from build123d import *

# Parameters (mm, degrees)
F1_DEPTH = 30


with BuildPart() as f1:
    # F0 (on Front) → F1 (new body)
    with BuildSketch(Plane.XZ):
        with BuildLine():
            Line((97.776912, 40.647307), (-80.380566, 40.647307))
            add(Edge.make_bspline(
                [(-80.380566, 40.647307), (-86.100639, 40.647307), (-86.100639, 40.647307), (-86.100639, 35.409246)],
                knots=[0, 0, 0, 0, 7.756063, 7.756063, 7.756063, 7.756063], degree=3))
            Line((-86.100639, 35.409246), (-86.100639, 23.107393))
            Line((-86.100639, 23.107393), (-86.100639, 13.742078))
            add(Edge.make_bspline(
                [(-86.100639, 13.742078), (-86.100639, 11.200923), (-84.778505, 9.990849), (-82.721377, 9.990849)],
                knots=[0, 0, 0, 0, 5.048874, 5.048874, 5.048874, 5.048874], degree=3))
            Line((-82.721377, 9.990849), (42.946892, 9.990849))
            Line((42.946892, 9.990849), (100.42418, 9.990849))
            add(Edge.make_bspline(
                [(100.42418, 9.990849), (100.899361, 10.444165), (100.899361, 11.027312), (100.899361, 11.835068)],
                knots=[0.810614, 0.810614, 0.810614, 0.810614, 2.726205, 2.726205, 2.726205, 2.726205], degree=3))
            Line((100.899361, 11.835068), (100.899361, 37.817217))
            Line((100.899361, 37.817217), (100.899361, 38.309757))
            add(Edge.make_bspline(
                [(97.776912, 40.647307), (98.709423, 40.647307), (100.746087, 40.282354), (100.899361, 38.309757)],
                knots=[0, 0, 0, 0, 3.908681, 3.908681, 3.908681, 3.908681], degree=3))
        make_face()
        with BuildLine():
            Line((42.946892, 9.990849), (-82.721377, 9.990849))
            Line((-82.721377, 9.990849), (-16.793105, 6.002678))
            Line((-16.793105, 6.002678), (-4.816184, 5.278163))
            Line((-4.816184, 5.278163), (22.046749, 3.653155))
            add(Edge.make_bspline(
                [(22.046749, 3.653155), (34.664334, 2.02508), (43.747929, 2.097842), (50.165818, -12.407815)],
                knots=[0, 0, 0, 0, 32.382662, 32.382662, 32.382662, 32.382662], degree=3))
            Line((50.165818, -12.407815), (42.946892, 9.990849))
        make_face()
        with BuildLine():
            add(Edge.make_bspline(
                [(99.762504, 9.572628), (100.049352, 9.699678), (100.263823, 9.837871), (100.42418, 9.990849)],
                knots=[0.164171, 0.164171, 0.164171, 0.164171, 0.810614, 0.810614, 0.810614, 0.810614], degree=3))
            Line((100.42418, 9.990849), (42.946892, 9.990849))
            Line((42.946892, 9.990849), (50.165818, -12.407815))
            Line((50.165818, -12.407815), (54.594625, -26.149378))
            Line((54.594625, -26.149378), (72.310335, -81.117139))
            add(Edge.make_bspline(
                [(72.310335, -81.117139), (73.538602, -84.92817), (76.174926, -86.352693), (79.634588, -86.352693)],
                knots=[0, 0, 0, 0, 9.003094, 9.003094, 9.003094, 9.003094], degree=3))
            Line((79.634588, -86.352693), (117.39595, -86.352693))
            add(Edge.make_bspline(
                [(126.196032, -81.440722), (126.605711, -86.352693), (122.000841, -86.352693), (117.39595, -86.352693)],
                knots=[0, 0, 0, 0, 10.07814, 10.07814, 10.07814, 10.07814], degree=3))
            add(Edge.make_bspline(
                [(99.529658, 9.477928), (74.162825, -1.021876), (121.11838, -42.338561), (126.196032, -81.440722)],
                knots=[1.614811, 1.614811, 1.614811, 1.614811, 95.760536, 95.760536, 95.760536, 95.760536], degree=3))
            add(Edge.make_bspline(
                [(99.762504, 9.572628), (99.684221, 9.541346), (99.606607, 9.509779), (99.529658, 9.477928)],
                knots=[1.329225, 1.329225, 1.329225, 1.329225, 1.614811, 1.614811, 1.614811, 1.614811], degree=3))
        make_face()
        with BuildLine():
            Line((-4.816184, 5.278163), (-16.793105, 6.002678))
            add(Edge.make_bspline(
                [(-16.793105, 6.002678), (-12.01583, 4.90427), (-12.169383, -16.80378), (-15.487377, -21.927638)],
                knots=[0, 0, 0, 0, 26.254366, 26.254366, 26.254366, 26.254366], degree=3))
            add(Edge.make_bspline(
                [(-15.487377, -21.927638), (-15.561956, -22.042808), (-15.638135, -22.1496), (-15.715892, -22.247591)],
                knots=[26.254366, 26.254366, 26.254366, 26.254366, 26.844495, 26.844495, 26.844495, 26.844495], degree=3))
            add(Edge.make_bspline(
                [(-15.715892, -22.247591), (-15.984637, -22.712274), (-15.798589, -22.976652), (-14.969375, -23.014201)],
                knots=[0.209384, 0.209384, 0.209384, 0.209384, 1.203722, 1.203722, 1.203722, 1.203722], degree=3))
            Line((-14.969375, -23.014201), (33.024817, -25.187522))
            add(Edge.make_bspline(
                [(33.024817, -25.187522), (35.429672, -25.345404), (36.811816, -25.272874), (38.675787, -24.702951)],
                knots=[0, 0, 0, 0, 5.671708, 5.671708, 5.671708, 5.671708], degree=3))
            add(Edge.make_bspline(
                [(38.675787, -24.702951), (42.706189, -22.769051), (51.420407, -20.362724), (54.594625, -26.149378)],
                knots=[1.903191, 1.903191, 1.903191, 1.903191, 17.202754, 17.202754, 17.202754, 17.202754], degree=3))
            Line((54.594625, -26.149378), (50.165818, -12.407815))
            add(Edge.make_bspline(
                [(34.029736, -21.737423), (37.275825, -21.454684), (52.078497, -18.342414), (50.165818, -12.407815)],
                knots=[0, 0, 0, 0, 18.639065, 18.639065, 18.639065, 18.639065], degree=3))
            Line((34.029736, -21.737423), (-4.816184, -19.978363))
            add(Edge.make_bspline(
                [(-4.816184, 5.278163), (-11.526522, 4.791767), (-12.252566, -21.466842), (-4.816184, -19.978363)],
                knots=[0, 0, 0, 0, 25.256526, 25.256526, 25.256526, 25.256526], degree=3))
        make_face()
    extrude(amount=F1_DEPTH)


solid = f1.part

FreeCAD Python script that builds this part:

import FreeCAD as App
import Part
import Sketcher
from FreeCAD import Vector

doc = App.newDocument("Part")
body = doc.addObject("PartDesign::Body", "Body")

# Sketch on XZ plane
sketch1 = doc.addObject("Sketcher::SketchObject", "Sketch")
body.addObject(sketch1)
sketch1.AttachmentSupport = (doc.XZ_Plane, [""])
sketch1.MapMode = "FlatFace"
sketch1.addGeometry(Part.LineSegment(Vector(97.776912, 40.647307, 0), Vector(-80.380566, 40.647307, 0)), False)
sketch1.addGeometry(Part.BSplineCurve([Vector(-80.380566, 40.647307, 0), Vector(-86.100639, 40.647307, 0), Vector(-86.100639, 40.647307, 0), Vector(-86.100639, 35.409246, 0)], [4, 4], [0, 7.756063], False, 3, [1, 1, 1, 1], False), False)
sketch1.addGeometry(Part.LineSegment(Vector(-86.100639, 35.409246, 0), Vector(-86.100639, 13.742078, 0)), False)
sketch1.addGeometry(Part.BSplineCurve([Vector(-86.100639, 13.742078, 0), Vector(-86.100639, 11.200923, 0), Vector(-84.778505, 9.990849, 0), Vector(-82.721377, 9.990849, 0)], [4, 4], [0, 5.048874], False, 3, [1, 1, 1, 1], False), False)
sketch1.addGeometry(Part.LineSegment(Vector(-82.721377, 9.990849, 0), Vector(-16.793105, 6.002678, 0)), False)
sketch1.addGeometry(Part.BSplineCurve([Vector(-16.793105, 6.002678, 0), Vector(-12.01583, 4.90427, 0), Vector(-12.169383, -16.80378, 0), Vector(-15.487377, -21.927638, 0)], [4, 4], [0, 26.254366], False, 3, [1, 1, 1, 1], False), False)
sketch1.addGeometry(Part.BSplineCurve([Vector(-15.487377, -21.927638, 0), Vector(-15.561956, -22.042808, 0), Vector(-15.638135, -22.1496, 0), Vector(-15.715892, -22.247591, 0)], [4, 4], [26.254366, 26.844495], False, 3, [1, 1, 1, 1], False), False)
sketch1.addGeometry(Part.BSplineCurve([Vector(-15.715892, -22.247591, 0), Vector(-15.984637, -22.712274, 0), Vector(-15.798589, -22.976652, 0), Vector(-14.969375, -23.014201, 0)], [4, 4], [0.209384, 1.203722], False, 3, [1, 1, 1, 1], False), False)
sketch1.addGeometry(Part.LineSegment(Vector(-14.969375, -23.014201, 0), Vector(33.024817, -25.187522, 0)), False)
sketch1.addGeometry(Part.BSplineCurve([Vector(33.024817, -25.187522, 0), Vector(35.429672, -25.345404, 0), Vector(36.811816, -25.272874, 0), Vector(38.675787, -24.702951, 0)], [4, 4], [0, 5.671708], False, 3, [1, 1, 1, 1], False), False)
sketch1.addGeometry(Part.BSplineCurve([Vector(38.675787, -24.702951, 0), Vector(42.706189, -22.769051, 0), Vector(51.420407, -20.362724, 0), Vector(54.594625, -26.149378, 0)], [4, 4], [1.903191, 17.202754], False, 3, [1, 1, 1, 1], False), False)
sketch1.addGeometry(Part.LineSegment(Vector(54.594625, -26.149378, 0), Vector(72.310335, -81.117139, 0)), False)
sketch1.addGeometry(Part.BSplineCurve([Vector(72.310335, -81.117139, 0), Vector(73.538602, -84.92817, 0), Vector(76.174926, -86.352693, 0), Vector(79.634588, -86.352693, 0)], [4, 4], [0, 9.003094], False, 3, [1, 1, 1, 1], False), False)
sketch1.addGeometry(Part.LineSegment(Vector(79.634588, -86.352693, 0), Vector(117.39595, -86.352693, 0)), False)
sketch1.addGeometry(Part.BSplineCurve([Vector(126.196032, -81.440722, 0), Vector(126.605711, -86.352693, 0), Vector(122.000841, -86.352693, 0), Vector(117.39595, -86.352693, 0)], [4, 4], [0, 10.07814], False, 3, [1, 1, 1, 1], False), False)
sketch1.addGeometry(Part.BSplineCurve([Vector(99.529658, 9.477928, 0), Vector(74.162825, -1.021876, 0), Vector(121.11838, -42.338561, 0), Vector(126.196032, -81.440722, 0)], [4, 4], [1.614811, 95.760536], False, 3, [1, 1, 1, 1], False), False)
sketch1.addGeometry(Part.BSplineCurve([Vector(99.762504, 9.572628, 0), Vector(99.684221, 9.541346, 0), Vector(99.606607, 9.509779, 0), Vector(99.529658, 9.477928, 0)], [4, 4], [1.329225, 1.614811], False, 3, [1, 1, 1, 1], False), False)
sketch1.addGeometry(Part.BSplineCurve([Vector(99.762504, 9.572628, 0), Vector(100.049352, 9.699678, 0), Vector(100.263823, 9.837871, 0), Vector(100.42418, 9.990849, 0)], [4, 4], [0.164171, 0.810614], False, 3, [1, 1, 1, 1], False), False)
sketch1.addGeometry(Part.BSplineCurve([Vector(100.42418, 9.990849, 0), Vector(100.899361, 10.444165, 0), Vector(100.899361, 11.027312, 0), Vector(100.899361, 11.835068, 0)], [4, 4], [0.810614, 2.726205], False, 3, [1, 1, 1, 1], False), False)
sketch1.addGeometry(Part.LineSegment(Vector(100.899361, 11.835068, 0), Vector(100.899361, 38.309757, 0)), False)
sketch1.addGeometry(Part.BSplineCurve([Vector(97.776912, 40.647307, 0), Vector(98.709423, 40.647307, 0), Vector(100.746087, 40.282354, 0), Vector(100.899361, 38.309757, 0)], [4, 4], [0, 3.908681], False, 3, [1, 1, 1, 1], False), False)
sketch1.addGeometry(Part.LineSegment(Vector(-4.816184, 5.278163, 0), Vector(22.046749, 3.653155, 0)), False)
sketch1.addGeometry(Part.BSplineCurve([Vector(22.046749, 3.653155, 0), Vector(34.664334, 2.02508, 0), Vector(43.747929, 2.097842, 0), Vector(50.165818, -12.407815, 0)], [4, 4], [0, 32.382662], False, 3, [1, 1, 1, 1], False), False)
sketch1.addGeometry(Part.BSplineCurve([Vector(34.029736, -21.737423, 0), Vector(37.275825, -21.454684, 0), Vector(52.078497, -18.342414, 0), Vector(50.165818, -12.407815, 0)], [4, 4], [0, 18.639065], False, 3, [1, 1, 1, 1], False), False)
sketch1.addGeometry(Part.LineSegment(Vector(34.029736, -21.737423, 0), Vector(-4.816184, -19.978363, 0)), False)
sketch1.addGeometry(Part.BSplineCurve([Vector(-4.816184, 5.278163, 0), Vector(-11.526522, 4.791767, 0), Vector(-12.252566, -21.466842, 0), Vector(-4.816184, -19.978363, 0)], [4, 4], [0, 25.256526], False, 3, [1, 1, 1, 1], False), False)
sketch1.addConstraint(Sketcher.Constraint("Block", 1))
sketch1.addConstraint(Sketcher.Constraint("Block", 3))
sketch1.addConstraint(Sketcher.Constraint("Block", 5))
sketch1.addConstraint(Sketcher.Constraint("Block", 6))
sketch1.addConstraint(Sketcher.Constraint("Block", 7))
sketch1.addConstraint(Sketcher.Constraint("Block", 9))
sketch1.addConstraint(Sketcher.Constraint("Block", 10))
sketch1.addConstraint(Sketcher.Constraint("Block", 12))
sketch1.addConstraint(Sketcher.Constraint("Block", 14))
sketch1.addConstraint(Sketcher.Constraint("Block", 15))
sketch1.addConstraint(Sketcher.Constraint("Block", 16))
sketch1.addConstraint(Sketcher.Constraint("Block", 17))
sketch1.addConstraint(Sketcher.Constraint("Block", 18))
sketch1.addConstraint(Sketcher.Constraint("Block", 20))
sketch1.addConstraint(Sketcher.Constraint("Block", 22))
sketch1.addConstraint(Sketcher.Constraint("Block", 23))
sketch1.addConstraint(Sketcher.Constraint("Block", 25))
sketch1.addConstraint(Sketcher.Constraint("Coincident", 0, 2, 1, 1))
sketch1.addConstraint(Sketcher.Constraint("Coincident", 1, 2, 2, 1))
sketch1.addConstraint(Sketcher.Constraint("Coincident", 2, 2, 3, 1))
sketch1.addConstraint(Sketcher.Constraint("Coincident", 3, 2, 4, 1))
sketch1.addConstraint(Sketcher.Constraint("Coincident", 4, 2, 5, 1))
sketch1.addConstraint(Sketcher.Constraint("Coincident", 7, 2, 8, 1))
sketch1.addConstraint(Sketcher.Constraint("Coincident", 8, 2, 9, 1))
sketch1.addConstraint(Sketcher.Constraint("Coincident", 10, 2, 11, 1))
sketch1.addConstraint(Sketcher.Constraint("Coincident", 11, 2, 12, 1))
sketch1.addConstraint(Sketcher.Constraint("Coincident", 12, 2, 13, 1))
sketch1.addConstraint(Sketcher.Constraint("Coincident", 13, 2, 14, 2))
sketch1.addConstraint(Sketcher.Constraint("Coincident", 18, 2, 19, 1))
sketch1.addConstraint(Sketcher.Constraint("Coincident", 19, 2, 20, 2))
sketch1.addConstraint(Sketcher.Constraint("Coincident", 20, 1, 0, 1))
sketch1.addConstraint(Sketcher.Constraint("Coincident", 21, 2, 22, 1))
sketch1.addConstraint(Sketcher.Constraint("Coincident", 23, 1, 24, 1))
sketch1.addConstraint(Sketcher.Constraint("Coincident", 24, 2, 25, 2))
sketch1.addConstraint(Sketcher.Constraint("Coincident", 25, 1, 21, 1))
pad1 = doc.addObject("PartDesign::Pad", "Pad")
body.addObject(pad1)
pad1.Profile = sketch1
pad1.Length = 30

doc.recompute()
